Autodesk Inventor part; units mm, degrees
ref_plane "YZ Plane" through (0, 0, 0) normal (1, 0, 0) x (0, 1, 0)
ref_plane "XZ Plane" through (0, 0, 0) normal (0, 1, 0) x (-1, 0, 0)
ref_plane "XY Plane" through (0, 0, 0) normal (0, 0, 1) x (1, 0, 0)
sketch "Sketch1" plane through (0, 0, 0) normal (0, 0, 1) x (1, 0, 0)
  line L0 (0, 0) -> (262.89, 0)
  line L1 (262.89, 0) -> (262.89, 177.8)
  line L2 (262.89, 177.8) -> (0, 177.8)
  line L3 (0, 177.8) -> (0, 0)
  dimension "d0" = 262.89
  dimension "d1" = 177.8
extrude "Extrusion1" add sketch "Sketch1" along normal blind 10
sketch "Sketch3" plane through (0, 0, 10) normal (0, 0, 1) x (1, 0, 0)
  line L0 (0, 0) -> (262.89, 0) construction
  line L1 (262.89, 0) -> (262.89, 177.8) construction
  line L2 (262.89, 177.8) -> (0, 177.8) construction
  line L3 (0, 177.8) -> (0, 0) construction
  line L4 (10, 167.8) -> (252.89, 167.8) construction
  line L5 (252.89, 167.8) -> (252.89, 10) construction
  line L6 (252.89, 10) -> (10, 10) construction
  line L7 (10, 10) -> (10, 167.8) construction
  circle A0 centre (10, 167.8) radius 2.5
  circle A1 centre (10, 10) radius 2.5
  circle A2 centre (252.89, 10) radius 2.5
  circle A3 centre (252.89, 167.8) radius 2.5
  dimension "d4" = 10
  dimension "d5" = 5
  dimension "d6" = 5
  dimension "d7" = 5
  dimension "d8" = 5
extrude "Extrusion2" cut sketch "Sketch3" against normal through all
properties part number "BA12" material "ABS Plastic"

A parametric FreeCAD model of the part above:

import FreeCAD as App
import Part
import Sketcher
from FreeCAD import Vector
Q = App.Units.Quantity


def add_polygon(sketch, points):
    """Adds a closed chain of lines whose ends are joined by coincident constraints."""
    first, n = sketch.GeometryCount, len(points)
    for a, b in zip(points, points[1:] + points[:1]):
        sketch.addGeometry(Part.LineSegment(App.Vector(*a, 0), App.Vector(*b, 0)), False)
    for i in range(n):
        sketch.addConstraint(Sketcher.Constraint("Coincident", first + i, 2, first + (i + 1) % n, 1))

doc = App.newDocument("Part")
params = doc.addObject("Spreadsheet::Sheet", "Params")
for row, (alias, value) in enumerate([
    ("sketch1_height", "177.8 mm"),
    ("sketch1_width", "262.89 mm"),
    ("pad1_length", "10 mm"),
    ("sketch2_diameter", "5 mm"),
], start=1):
    params.set(f"A{row}", alias)
    params.set(f"B{row}", "=" + value)
    params.setAlias(f"B{row}", alias)

body = doc.addObject("PartDesign::Body", "Body")

# Sketch on XY plane
sketch1 = doc.addObject("Sketcher::SketchObject", "Sketch")
body.addObject(sketch1)
sketch1.AttachmentSupport = (doc.XY_Plane, [""])
sketch1.MapMode = "FlatFace"
add_polygon(sketch1, [(0, 177.8), (0, 0), (262.89, 0), (262.89, 177.8)])  # lines 0-3
sketch1.addConstraint(Sketcher.Constraint("Vertical", 0))
sketch1.addConstraint(Sketcher.Constraint("Horizontal", 1))
sketch1.addConstraint(Sketcher.Constraint("Vertical", 2))
sketch1.addConstraint(Sketcher.Constraint("Horizontal", 3))
sketch1.addConstraint(Sketcher.Constraint("Coincident", 0, 2, -1, 1))
sketch1.addConstraint(Sketcher.Constraint("DistanceY", 0, 2, 0, 1, Q("177.8 mm")))
sketch1.addConstraint(Sketcher.Constraint("DistanceX", 1, 1, 1, 2, Q("262.89 mm")))
sketch1.setExpression("Constraints[9]", "Params.sketch1_height")
sketch1.setExpression("Constraints[10]", "Params.sketch1_width")
pad1 = doc.addObject("PartDesign::Pad", "Pad")
body.addObject(pad1)
pad1.Profile = sketch1
pad1.setExpression("Length", "Params.pad1_length")

# Sketch on XY plane
sketch2 = doc.addObject("Sketcher::SketchObject", "Sketch001")
body.addObject(sketch2)
sketch2.AttachmentSupport = (doc.XY_Plane, [""])
sketch2.MapMode = "FlatFace"
sketch2.AttachmentOffset = App.Placement(Vector(0, 0, 10), App.Rotation())
sketch2.addGeometry(Part.Circle(Vector(10, 167.8, 0), Vector(0, 0, 1), 2.5), False)
sketch2.addGeometry(Part.Circle(Vector(10, 10, 0), Vector(0, 0, 1), 2.5), False)
sketch2.addGeometry(Part.Circle(Vector(252.89, 10, 0), Vector(0, 0, 1), 2.5), False)
sketch2.addGeometry(Part.Circle(Vector(252.89, 167.8, 0), Vector(0, 0, 1), 2.5), False)
sketch2.addConstraint(Sketcher.Constraint("Equal", 0, 1))
sketch2.addConstraint(Sketcher.Constraint("Equal", 1, 2))
sketch2.addConstraint(Sketcher.Constraint("Equal", 2, 3))
sketch2.addConstraint(Sketcher.Constraint("Horizontal", 1, 3, 2, 3))
sketch2.addConstraint(Sketcher.Constraint("Horizontal", 0, 3, 3, 3))
sketch2.addConstraint(Sketcher.Constraint("Vertical", 0, 3, 1, 3))
sketch2.addConstraint(Sketcher.Constraint("Vertical", 2, 3, 3, 3))
sketch2.addConstraint(Sketcher.Constraint("Diameter", 0, Q("5 mm")))
sketch2.addConstraint(Sketcher.Constraint("DistanceX", -1, 1, 0, 3, Q("10 mm")))
sketch2.addConstraint(Sketcher.Constraint("DistanceY", -1, 1, 1, 3, Q("10 mm")))
sketch2.addConstraint(Sketcher.Constraint("DistanceY", -1, 1, 0, 3, Q("167.8 mm")))
sketch2.addConstraint(Sketcher.Constraint("DistanceX", -1, 1, 2, 3, Q("252.89 mm")))
sketch2.setExpression("Constraints[7]", "Params.sketch2_diameter")
pocket1 = doc.addObject("PartDesign::Pocket", "Pocket")
body.addObject(pocket1)
pocket1.Profile = sketch2
pocket1.Type = "ThroughAll"

doc.recompute()
